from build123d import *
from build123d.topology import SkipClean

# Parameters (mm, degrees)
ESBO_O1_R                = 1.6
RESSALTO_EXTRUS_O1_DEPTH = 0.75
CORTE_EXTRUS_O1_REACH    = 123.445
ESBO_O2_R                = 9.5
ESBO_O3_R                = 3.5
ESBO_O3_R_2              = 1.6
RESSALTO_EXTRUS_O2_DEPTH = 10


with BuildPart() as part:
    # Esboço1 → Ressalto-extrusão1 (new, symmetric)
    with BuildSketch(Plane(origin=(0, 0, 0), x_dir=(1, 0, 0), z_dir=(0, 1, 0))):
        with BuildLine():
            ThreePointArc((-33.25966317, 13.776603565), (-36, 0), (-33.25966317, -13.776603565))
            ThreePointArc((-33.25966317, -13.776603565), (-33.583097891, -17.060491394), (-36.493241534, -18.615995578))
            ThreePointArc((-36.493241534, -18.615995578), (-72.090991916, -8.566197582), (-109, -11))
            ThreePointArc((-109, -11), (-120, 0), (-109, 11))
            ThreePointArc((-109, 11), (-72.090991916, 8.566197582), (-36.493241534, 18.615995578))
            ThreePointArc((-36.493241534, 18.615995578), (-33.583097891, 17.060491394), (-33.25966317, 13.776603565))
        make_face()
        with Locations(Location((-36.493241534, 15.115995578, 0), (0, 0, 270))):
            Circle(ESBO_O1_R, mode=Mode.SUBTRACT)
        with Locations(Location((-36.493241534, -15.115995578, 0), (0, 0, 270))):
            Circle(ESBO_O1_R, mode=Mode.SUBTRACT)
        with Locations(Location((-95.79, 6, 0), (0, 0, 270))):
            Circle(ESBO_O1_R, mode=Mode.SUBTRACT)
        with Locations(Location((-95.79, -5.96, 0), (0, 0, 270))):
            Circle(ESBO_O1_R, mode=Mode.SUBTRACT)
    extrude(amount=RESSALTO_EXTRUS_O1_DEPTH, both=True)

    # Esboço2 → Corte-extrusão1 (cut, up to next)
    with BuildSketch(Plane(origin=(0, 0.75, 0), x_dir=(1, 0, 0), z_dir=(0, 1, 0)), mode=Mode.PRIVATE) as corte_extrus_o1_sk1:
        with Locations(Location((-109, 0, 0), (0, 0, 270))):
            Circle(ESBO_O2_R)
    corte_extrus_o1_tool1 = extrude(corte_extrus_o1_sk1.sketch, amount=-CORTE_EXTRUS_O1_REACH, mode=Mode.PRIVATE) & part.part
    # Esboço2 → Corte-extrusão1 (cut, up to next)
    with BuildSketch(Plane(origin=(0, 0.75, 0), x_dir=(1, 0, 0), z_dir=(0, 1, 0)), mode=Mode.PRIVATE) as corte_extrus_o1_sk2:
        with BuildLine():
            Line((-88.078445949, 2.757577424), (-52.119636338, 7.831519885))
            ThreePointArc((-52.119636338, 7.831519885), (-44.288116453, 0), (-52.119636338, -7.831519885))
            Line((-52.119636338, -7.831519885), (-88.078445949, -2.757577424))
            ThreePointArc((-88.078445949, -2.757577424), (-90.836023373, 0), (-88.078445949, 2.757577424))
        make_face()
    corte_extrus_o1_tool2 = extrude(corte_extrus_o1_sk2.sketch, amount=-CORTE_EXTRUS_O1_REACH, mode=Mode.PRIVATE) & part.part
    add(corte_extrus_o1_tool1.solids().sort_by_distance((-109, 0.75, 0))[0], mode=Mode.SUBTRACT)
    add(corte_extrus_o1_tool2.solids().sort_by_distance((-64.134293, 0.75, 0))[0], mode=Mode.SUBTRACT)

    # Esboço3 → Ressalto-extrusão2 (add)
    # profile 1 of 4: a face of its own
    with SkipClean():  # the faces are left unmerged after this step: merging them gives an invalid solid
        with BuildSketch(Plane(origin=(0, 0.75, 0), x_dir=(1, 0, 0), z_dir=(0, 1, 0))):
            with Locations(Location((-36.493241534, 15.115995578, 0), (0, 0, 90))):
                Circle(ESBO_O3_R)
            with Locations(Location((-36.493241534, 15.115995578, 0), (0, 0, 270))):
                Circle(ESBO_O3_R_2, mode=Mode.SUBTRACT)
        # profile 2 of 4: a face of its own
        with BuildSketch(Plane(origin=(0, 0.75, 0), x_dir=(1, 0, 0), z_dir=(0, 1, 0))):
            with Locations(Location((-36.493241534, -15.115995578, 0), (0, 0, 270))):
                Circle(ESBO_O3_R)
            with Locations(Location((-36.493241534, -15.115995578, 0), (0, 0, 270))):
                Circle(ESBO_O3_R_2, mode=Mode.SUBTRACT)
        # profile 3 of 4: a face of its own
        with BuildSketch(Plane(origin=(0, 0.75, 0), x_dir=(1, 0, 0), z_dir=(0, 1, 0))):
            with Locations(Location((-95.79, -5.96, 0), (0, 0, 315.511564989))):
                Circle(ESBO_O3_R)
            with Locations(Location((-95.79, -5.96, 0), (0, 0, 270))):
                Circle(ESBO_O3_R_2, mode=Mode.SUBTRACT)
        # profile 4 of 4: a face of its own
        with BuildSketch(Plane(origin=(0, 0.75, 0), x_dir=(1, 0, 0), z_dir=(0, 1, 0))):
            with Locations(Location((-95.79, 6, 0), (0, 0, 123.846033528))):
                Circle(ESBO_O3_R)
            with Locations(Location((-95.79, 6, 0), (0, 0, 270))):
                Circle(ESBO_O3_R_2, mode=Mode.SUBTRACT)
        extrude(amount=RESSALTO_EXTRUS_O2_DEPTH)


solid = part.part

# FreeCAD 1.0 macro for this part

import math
import FreeCAD as App
import Part
import Sketcher

doc = App.newDocument("Part")
body = doc.addObject("PartDesign::Body", "Body")

# Sketch on XZ plane
sketch1 = body.newObject("Sketcher::SketchObject", "Sketch")
sketch1.AttachmentSupport = (doc.getObject("XZ_Plane"), [""])
sketch1.MapMode = "FlatFace"
sketch1.addGeometry(Part.ArcOfCircle(Part.Circle(App.Vector(0, 0, 0), App.Vector(0, 0, 1), 36), math.radians(157), math.radians(203)), False)
sketch1.addGeometry(Part.ArcOfCircle(Part.Circle(App.Vector(-36.5, -15.1, 0), App.Vector(0, 0, 1), 3.5), math.radians(-90), math.radians(22)), False)
sketch1.addGeometry(Part.ArcOfCircle(Part.Circle(App.Vector(-83.5, -117, 0), App.Vector(0, 0, 1), 109), math.radians(64), math.radians(104)), False)
sketch1.addGeometry(Part.ArcOfCircle(Part.Circle(App.Vector(-109, 0, 0), App.Vector(0, 0, 1), 11), math.radians(90), math.radians(270)), False)
sketch1.addGeometry(Part.ArcOfCircle(Part.Circle(App.Vector(-83.5, 117, 0), App.Vector(0, 0, 1), 109), math.radians(-104), math.radians(-64)), False)
sketch1.addGeometry(Part.ArcOfCircle(Part.Circle(App.Vector(-36.5, 15.1, 0), App.Vector(0, 0, 1), 3.5), math.radians(-22), math.radians(90)), False)
sketch1.addGeometry(Part.Circle(App.Vector(-36.5, 15.1, 0), App.Vector(0, 0, 1), 1.6), False)
sketch1.addGeometry(Part.Circle(App.Vector(-95.8, 6, 0), App.Vector(0, 0, 1), 1.6), False)
sketch1.addGeometry(Part.Circle(App.Vector(-36.5, -15.1, 0), App.Vector(0, 0, 1), 1.6), False)
sketch1.addGeometry(Part.Circle(App.Vector(-95.8, -6, 0), App.Vector(0, 0, 1), 1.6), False)
sketch1.addConstraint(Sketcher.Constraint("Tangent", 0, 2, 1, 2))
sketch1.addConstraint(Sketcher.Constraint("Coincident", 1, 1, 2, 1))
sketch1.addConstraint(Sketcher.Constraint("Coincident", 2, 2, 3, 2))
sketch1.addConstraint(Sketcher.Constraint("Coincident", 3, 1, 4, 1))
sketch1.addConstraint(Sketcher.Constraint("Coincident", 4, 2, 5, 2))
sketch1.addConstraint(Sketcher.Constraint("Tangent", 5, 1, 0, 1))
sketch1.addConstraint(Sketcher.Constraint("Coincident", 0, 3, -1, 1))
sketch1.addConstraint(Sketcher.Constraint("Coincident", 6, 3, 5, 3))
sketch1.addConstraint(Sketcher.Constraint("Coincident", 8, 3, 1, 3))
sketch1.addConstraint(Sketcher.Constraint("Equal", 2, 4))
sketch1.addConstraint(Sketcher.Constraint("Equal", 1, 5))
sketch1.addConstraint(Sketcher.Constraint("Equal", 6, 7))
sketch1.addConstraint(Sketcher.Constraint("Equal", 7, 8))
sketch1.addConstraint(Sketcher.Constraint("Equal", 8, 9))
sketch1.addConstraint(Sketcher.Constraint("Symmetric", 2, 3, 4, 3, -1))
sketch1.addConstraint(Sketcher.Constraint("PointOnObject", 3, 3, -1))
sketch1.addConstraint(Sketcher.Constraint("Vertical", 1, 3, 5, 3))
sketch1.addConstraint(Sketcher.Constraint("Vertical", 7, 3, 9, 3))
sketch1.addConstraint(Sketcher.Constraint("Vertical", 8, 3, 1, 1))
sketch1.addConstraint(Sketcher.Constraint("Vertical", 3, 3, 2, 2))
sketch1.addConstraint(Sketcher.Constraint("Radius", 0, 36.0))
sketch1.addConstraint(Sketcher.Constraint("Radius", 2, 109.0))
sketch1.addConstraint(Sketcher.Constraint("Radius", 3, 11.0))
sketch1.addConstraint(Sketcher.Constraint("Diameter", 6, 3.2))
sketch1.addConstraint(Sketcher.Constraint("Radius", 1, 3.5))
sketch1.addConstraint(Sketcher.Constraint("DistanceX", 3, 3, -1, 1, 109.0))
sketch1.addConstraint(Sketcher.Constraint("DistanceY", 9, 3, -1, 1, 6.0))
sketch1.addConstraint(Sketcher.Constraint("DistanceX", 7, 3, -1, 1, 95.79))
sketch1.addConstraint(Sketcher.Constraint("DistanceY", -1, 1, 7, 3, 5.96))
sketch1.addConstraint(Sketcher.Constraint("DistanceY", 0, 2, 5, 3, 28.892599))
pad1 = body.newObject("PartDesign::Pad", "Pad")
pad1.Profile = sketch1
pad1.Length = 1.5
pad1.Midplane = True

# Sketch on XZ plane
sketch2 = body.newObject("Sketcher::SketchObject", "Sketch001")
sketch2.AttachmentSupport = (doc.getObject("XZ_Plane"), [""])
sketch2.MapMode = "FlatFace"
sketch2.AttachmentOffset = App.Placement(App.Vector(0, 0, -0.75), App.Rotation())
sketch2.addGeometry(Part.Circle(App.Vector(-109, 0, 0), App.Vector(0, 0, 1), 10), False)
sketch2.addConstraint(Sketcher.Constraint("PointOnObject", 0, 3, -1))
sketch2.addConstraint(Sketcher.Constraint("Diameter", 0, 19.0))
sketch2.addConstraint(Sketcher.Constraint("DistanceX", 0, 3, -1, 1, 109.0))
pocket1 = body.newObject("PartDesign::Pocket", "Pocket")
pocket1.Profile = sketch2
pocket1.Type = "UpToFirst"
pocket1.Reversed = True

# Sketch on XZ plane
sketch3 = body.newObject("Sketcher::SketchObject", "Sketch002")
sketch3.AttachmentSupport = (doc.getObject("XZ_Plane"), [""])
sketch3.MapMode = "FlatFace"
sketch3.AttachmentOffset = App.Placement(App.Vector(0, 0, -0.75), App.Rotation())
sketch3.addGeometry(Part.LineSegment(App.Vector(-52.1, -7.8, 0), App.Vector(-88.1, -2.8, 0)), False)
sketch3.addGeometry(Part.ArcOfCircle(Part.Circle(App.Vector(-88.1, 0, 0), App.Vector(0, 0, 1), 2.8), math.radians(90), math.radians(270)), False)
sketch3.addGeometry(Part.LineSegment(App.Vector(-88.1, 2.8, 0), App.Vector(-52.1, 7.8, 0)), False)
sketch3.addGeometry(Part.ArcOfCircle(Part.Circle(App.Vector(-52.1, 0, 0), App.Vector(0, 0, 1), 7.8), math.radians(-90), math.radians(90)), False)
sketch3.addConstraint(Sketcher.Constraint("Coincident", 0, 2, 1, 2))
sketch3.addConstraint(Sketcher.Constraint("Coincident", 1, 1, 2, 1))
sketch3.addConstraint(Sketcher.Constraint("Coincident", 2, 2, 3, 2))
sketch3.addConstraint(Sketcher.Constraint("Coincident", 3, 1, 0, 1))
sketch3.addConstraint(Sketcher.Constraint("Symmetric", 0, 2, 1, 1, -1))
sketch3.addConstraint(Sketcher.Constraint("Symmetric", 2, 2, 3, 1, -1))
sketch3.addConstraint(Sketcher.Constraint("Vertical", 1, 3, 0, 2))
sketch3.addConstraint(Sketcher.Constraint("Vertical", 3, 3, 2, 2))
sketch3.addConstraint(Sketcher.Constraint("Radius", 3, 7.83152))
sketch3.addConstraint(Sketcher.Constraint("Radius", 1, 2.757577))
sketch3.addConstraint(Sketcher.Constraint("DistanceX", 1, 3, 3, 3, 35.95881))
sketch3.addConstraint(Sketcher.Constraint("DistanceX", 1, 3, -1, 1, 88.078446))
pocket2 = body.newObject("PartDesign::Pocket", "Pocket001")
pocket2.Profile = sketch3
pocket2.Type = "UpToFirst"
pocket2.Reversed = True

# Sketch on XZ plane
sketch4 = body.newObject("Sketcher::SketchObject", "Sketch003")
sketch4.AttachmentSupport = (doc.getObject("XZ_Plane"), [""])
sketch4.MapMode = "FlatFace"
sketch4.AttachmentOffset = App.Placement(App.Vector(0, 0, -0.75), App.Rotation())
sketch4.addGeometry(Part.Circle(App.Vector(-36.5, -15.1, 0), App.Vector(0, 0, 1), 3.5), False)
sketch4.addGeometry(Part.Circle(App.Vector(-36.5, -15.1, 0), App.Vector(0, 0, 1), 1.6), False)
sketch4.addGeometry(Part.Circle(App.Vector(-36.5, 15.1, 0), App.Vector(0, 0, 1), 3.5), False)
sketch4.addGeometry(Part.Circle(App.Vector(-36.5, 15.1, 0), App.Vector(0, 0, 1), 1.6), False)
sketch4.addGeometry(Part.Circle(App.Vector(-95.8, 6, 0), App.Vector(0, 0, 1), 3.5), False)
sketch4.addGeometry(Part.Circle(App.Vector(-95.8, 6, 0), App.Vector(0, 0, 1), 1.6), False)
sketch4.addGeometry(Part.Circle(App.Vector(-95.8, -6, 0), App.Vector(0, 0, 1), 3.5), False)
sketch4.addGeometry(Part.Circle(App.Vector(-95.8, -6, 0), App.Vector(0, 0, 1), 1.6), False)
sketch4.addConstraint(Sketcher.Constraint("Coincident", 1, 3, 0, 3))
sketch4.addConstraint(Sketcher.Constraint("Coincident", 3, 3, 2, 3))
sketch4.addConstraint(Sketcher.Constraint("Coincident", 5, 3, 4, 3))
sketch4.addConstraint(Sketcher.Constraint("Coincident", 7, 3, 6, 3))
sketch4.addConstraint(Sketcher.Constraint("Equal", 0, 2))
sketch4.addConstraint(Sketcher.Constraint("Equal", 1, 3))
sketch4.addConstraint(Sketcher.Constraint("Equal", 2, 4))
sketch4.addConstraint(Sketcher.Constraint("Equal", 3, 5))
sketch4.addConstraint(Sketcher.Constraint("Equal", 4, 6))
sketch4.addConstraint(Sketcher.Constraint("Equal", 5, 7))
sketch4.addConstraint(Sketcher.Constraint("Symmetric", 0, 3, 2, 3, -1))
sketch4.addConstraint(Sketcher.Constraint("Vertical", 5, 3, 6, 3))
sketch4.addConstraint(Sketcher.Constraint("Diameter", 0, 7.0))
sketch4.addConstraint(Sketcher.Constraint("Diameter", 1, 3.2))
sketch4.addConstraint(Sketcher.Constraint("DistanceY", 6, 3, -1, 1, 6.0))
sketch4.addConstraint(Sketcher.Constraint("DistanceX", 4, 3, -1, 1, 95.79))
sketch4.addConstraint(Sketcher.Constraint("DistanceY", -1, 1, 4, 3, 5.96))
sketch4.addConstraint(Sketcher.Constraint("DistanceX", 0, 3, -1, 1, 36.493242))
sketch4.addConstraint(Sketcher.Constraint("DistanceY", 0, 3, 2, 3, 30.231991))
pad2 = body.newObject("PartDesign::Pad", "Pad001")
pad2.Profile = sketch4
pad2.Length = 10
pad2.Reversed = True

doc.recompute()
